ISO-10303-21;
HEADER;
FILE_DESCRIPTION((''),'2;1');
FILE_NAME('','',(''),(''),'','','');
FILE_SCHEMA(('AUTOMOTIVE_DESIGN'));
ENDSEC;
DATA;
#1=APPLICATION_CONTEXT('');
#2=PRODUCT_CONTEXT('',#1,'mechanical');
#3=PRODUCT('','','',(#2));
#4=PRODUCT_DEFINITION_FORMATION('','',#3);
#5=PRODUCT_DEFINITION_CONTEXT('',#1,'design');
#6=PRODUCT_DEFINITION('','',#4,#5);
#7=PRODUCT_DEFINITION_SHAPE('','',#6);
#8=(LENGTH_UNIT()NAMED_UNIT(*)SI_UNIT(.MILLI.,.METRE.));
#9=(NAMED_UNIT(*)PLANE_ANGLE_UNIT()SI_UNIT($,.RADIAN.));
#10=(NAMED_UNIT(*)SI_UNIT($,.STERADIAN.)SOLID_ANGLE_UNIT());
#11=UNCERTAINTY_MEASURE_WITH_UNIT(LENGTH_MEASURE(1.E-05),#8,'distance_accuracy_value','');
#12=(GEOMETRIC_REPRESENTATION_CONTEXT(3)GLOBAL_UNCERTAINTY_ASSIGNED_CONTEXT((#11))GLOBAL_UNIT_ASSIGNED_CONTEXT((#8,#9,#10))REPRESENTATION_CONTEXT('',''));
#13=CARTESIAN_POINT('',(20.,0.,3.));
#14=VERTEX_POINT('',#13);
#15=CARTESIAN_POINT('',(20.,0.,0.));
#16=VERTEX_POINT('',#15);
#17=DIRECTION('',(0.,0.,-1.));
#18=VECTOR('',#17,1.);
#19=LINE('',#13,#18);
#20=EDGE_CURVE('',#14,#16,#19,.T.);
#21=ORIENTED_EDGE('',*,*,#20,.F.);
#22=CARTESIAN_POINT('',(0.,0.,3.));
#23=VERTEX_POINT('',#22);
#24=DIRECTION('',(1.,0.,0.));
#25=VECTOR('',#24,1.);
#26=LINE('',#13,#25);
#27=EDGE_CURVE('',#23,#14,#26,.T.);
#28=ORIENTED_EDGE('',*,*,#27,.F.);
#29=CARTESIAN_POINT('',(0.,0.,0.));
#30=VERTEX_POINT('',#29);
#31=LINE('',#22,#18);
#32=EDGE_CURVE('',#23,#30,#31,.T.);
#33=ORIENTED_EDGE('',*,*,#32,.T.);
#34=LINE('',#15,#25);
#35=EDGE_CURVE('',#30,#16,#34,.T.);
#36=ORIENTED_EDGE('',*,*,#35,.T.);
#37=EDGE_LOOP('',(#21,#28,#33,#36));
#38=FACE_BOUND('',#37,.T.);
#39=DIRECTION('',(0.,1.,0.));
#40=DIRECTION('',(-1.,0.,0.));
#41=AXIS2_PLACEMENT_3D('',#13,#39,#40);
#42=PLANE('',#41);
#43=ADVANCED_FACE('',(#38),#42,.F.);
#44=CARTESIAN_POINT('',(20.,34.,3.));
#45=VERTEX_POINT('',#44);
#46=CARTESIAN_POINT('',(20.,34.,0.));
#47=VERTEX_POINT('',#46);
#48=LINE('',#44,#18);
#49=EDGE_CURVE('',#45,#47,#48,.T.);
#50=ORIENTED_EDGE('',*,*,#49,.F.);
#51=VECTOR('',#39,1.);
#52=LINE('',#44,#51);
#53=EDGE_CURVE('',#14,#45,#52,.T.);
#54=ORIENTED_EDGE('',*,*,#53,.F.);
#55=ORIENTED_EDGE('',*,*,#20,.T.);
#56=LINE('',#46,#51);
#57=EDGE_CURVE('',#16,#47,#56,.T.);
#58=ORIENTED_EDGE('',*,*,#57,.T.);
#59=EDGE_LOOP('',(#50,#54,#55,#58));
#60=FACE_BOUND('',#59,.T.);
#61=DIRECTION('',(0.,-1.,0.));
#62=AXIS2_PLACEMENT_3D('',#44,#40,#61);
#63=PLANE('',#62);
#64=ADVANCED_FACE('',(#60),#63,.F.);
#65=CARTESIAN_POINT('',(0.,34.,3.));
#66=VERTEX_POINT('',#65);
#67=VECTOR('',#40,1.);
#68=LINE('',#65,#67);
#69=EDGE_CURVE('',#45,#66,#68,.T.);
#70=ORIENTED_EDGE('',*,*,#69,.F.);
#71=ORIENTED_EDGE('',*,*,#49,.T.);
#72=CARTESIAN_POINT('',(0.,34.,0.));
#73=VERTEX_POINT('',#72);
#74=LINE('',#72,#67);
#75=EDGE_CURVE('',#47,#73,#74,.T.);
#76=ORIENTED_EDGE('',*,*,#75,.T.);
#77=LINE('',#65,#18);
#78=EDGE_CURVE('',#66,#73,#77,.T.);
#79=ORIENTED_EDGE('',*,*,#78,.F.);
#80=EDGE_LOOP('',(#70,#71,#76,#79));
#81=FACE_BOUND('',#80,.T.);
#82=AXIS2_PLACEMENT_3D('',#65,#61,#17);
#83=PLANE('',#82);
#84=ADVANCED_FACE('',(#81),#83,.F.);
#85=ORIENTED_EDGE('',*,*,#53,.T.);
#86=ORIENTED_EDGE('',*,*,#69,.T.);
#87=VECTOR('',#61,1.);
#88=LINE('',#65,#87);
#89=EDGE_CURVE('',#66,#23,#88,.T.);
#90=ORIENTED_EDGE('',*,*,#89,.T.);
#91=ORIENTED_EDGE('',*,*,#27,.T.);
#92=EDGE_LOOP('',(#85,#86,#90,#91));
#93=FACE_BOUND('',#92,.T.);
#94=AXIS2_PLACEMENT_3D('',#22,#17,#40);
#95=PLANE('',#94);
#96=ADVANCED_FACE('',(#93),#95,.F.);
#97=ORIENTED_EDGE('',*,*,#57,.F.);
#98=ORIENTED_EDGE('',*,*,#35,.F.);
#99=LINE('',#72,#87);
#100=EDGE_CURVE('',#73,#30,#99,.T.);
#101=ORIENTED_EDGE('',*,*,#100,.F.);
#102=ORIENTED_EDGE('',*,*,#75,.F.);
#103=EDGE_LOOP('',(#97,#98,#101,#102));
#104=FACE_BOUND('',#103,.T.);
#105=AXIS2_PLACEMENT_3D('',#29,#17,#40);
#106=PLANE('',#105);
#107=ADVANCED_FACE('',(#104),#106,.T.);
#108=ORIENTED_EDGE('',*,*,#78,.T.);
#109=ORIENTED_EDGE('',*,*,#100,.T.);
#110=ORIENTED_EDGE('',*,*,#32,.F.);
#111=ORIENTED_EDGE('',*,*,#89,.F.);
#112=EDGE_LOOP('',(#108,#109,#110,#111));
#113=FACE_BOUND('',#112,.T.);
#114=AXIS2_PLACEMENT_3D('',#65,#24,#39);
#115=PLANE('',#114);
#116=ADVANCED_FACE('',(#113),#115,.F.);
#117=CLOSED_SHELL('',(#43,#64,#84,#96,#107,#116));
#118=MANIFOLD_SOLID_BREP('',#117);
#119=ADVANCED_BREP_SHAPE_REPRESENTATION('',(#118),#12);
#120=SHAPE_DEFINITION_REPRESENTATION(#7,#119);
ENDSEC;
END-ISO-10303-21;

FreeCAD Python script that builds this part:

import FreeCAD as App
import Part
import Sketcher


def add_polygon(sketch, points):
    """Adds a closed chain of lines whose ends are joined by coincident constraints."""
    first, n = sketch.GeometryCount, len(points)
    for a, b in zip(points, points[1:] + points[:1]):
        sketch.addGeometry(Part.LineSegment(App.Vector(*a, 0), App.Vector(*b, 0)), False)
    for i in range(n):
        sketch.addConstraint(Sketcher.Constraint("Coincident", first + i, 2, first + (i + 1) % n, 1))

doc = App.newDocument("Part")
params = doc.addObject("Spreadsheet::Sheet", "Params")
for row, (alias, value) in enumerate([
    ("sketch1_width", "20 mm"),
    ("sketch1_height", "34 mm"),
    ("pad1_length", "3 mm"),
], start=1):
    params.set(f"A{row}", alias)
    params.set(f"B{row}", "=" + value)
    params.setAlias(f"B{row}", alias)

body = doc.addObject("PartDesign::Body", "Body")

sketch1 = body.newObject("Sketcher::SketchObject", "Sketch")
sketch1.AttachmentSupport = (doc.getObject("XY_Plane"), [""])
sketch1.MapMode = "FlatFace"
add_polygon(sketch1, [(0, 34), (0, 0), (20, 0), (20, 34)])
sketch1.addConstraint([
    Sketcher.Constraint("Vertical", 0),
    Sketcher.Constraint("Horizontal", 1),
    Sketcher.Constraint("Vertical", 2),
    Sketcher.Constraint("Horizontal", 3),
    Sketcher.Constraint("Coincident", 0, 2, -1, 1),
    Sketcher.Constraint("DistanceX", 1, 1, 1, 2, 20.0),
    Sketcher.Constraint("DistanceY", 0, 2, 0, 1, 34.0),
])
sketch1.setExpression("Constraints[9]", "Params.sketch1_width")
sketch1.setExpression("Constraints[10]", "Params.sketch1_height")
pad1 = body.newObject("PartDesign::Pad", "Pad")
pad1.Profile = sketch1
pad1.setExpression("Length", "Params.pad1_length")

doc.recompute()
